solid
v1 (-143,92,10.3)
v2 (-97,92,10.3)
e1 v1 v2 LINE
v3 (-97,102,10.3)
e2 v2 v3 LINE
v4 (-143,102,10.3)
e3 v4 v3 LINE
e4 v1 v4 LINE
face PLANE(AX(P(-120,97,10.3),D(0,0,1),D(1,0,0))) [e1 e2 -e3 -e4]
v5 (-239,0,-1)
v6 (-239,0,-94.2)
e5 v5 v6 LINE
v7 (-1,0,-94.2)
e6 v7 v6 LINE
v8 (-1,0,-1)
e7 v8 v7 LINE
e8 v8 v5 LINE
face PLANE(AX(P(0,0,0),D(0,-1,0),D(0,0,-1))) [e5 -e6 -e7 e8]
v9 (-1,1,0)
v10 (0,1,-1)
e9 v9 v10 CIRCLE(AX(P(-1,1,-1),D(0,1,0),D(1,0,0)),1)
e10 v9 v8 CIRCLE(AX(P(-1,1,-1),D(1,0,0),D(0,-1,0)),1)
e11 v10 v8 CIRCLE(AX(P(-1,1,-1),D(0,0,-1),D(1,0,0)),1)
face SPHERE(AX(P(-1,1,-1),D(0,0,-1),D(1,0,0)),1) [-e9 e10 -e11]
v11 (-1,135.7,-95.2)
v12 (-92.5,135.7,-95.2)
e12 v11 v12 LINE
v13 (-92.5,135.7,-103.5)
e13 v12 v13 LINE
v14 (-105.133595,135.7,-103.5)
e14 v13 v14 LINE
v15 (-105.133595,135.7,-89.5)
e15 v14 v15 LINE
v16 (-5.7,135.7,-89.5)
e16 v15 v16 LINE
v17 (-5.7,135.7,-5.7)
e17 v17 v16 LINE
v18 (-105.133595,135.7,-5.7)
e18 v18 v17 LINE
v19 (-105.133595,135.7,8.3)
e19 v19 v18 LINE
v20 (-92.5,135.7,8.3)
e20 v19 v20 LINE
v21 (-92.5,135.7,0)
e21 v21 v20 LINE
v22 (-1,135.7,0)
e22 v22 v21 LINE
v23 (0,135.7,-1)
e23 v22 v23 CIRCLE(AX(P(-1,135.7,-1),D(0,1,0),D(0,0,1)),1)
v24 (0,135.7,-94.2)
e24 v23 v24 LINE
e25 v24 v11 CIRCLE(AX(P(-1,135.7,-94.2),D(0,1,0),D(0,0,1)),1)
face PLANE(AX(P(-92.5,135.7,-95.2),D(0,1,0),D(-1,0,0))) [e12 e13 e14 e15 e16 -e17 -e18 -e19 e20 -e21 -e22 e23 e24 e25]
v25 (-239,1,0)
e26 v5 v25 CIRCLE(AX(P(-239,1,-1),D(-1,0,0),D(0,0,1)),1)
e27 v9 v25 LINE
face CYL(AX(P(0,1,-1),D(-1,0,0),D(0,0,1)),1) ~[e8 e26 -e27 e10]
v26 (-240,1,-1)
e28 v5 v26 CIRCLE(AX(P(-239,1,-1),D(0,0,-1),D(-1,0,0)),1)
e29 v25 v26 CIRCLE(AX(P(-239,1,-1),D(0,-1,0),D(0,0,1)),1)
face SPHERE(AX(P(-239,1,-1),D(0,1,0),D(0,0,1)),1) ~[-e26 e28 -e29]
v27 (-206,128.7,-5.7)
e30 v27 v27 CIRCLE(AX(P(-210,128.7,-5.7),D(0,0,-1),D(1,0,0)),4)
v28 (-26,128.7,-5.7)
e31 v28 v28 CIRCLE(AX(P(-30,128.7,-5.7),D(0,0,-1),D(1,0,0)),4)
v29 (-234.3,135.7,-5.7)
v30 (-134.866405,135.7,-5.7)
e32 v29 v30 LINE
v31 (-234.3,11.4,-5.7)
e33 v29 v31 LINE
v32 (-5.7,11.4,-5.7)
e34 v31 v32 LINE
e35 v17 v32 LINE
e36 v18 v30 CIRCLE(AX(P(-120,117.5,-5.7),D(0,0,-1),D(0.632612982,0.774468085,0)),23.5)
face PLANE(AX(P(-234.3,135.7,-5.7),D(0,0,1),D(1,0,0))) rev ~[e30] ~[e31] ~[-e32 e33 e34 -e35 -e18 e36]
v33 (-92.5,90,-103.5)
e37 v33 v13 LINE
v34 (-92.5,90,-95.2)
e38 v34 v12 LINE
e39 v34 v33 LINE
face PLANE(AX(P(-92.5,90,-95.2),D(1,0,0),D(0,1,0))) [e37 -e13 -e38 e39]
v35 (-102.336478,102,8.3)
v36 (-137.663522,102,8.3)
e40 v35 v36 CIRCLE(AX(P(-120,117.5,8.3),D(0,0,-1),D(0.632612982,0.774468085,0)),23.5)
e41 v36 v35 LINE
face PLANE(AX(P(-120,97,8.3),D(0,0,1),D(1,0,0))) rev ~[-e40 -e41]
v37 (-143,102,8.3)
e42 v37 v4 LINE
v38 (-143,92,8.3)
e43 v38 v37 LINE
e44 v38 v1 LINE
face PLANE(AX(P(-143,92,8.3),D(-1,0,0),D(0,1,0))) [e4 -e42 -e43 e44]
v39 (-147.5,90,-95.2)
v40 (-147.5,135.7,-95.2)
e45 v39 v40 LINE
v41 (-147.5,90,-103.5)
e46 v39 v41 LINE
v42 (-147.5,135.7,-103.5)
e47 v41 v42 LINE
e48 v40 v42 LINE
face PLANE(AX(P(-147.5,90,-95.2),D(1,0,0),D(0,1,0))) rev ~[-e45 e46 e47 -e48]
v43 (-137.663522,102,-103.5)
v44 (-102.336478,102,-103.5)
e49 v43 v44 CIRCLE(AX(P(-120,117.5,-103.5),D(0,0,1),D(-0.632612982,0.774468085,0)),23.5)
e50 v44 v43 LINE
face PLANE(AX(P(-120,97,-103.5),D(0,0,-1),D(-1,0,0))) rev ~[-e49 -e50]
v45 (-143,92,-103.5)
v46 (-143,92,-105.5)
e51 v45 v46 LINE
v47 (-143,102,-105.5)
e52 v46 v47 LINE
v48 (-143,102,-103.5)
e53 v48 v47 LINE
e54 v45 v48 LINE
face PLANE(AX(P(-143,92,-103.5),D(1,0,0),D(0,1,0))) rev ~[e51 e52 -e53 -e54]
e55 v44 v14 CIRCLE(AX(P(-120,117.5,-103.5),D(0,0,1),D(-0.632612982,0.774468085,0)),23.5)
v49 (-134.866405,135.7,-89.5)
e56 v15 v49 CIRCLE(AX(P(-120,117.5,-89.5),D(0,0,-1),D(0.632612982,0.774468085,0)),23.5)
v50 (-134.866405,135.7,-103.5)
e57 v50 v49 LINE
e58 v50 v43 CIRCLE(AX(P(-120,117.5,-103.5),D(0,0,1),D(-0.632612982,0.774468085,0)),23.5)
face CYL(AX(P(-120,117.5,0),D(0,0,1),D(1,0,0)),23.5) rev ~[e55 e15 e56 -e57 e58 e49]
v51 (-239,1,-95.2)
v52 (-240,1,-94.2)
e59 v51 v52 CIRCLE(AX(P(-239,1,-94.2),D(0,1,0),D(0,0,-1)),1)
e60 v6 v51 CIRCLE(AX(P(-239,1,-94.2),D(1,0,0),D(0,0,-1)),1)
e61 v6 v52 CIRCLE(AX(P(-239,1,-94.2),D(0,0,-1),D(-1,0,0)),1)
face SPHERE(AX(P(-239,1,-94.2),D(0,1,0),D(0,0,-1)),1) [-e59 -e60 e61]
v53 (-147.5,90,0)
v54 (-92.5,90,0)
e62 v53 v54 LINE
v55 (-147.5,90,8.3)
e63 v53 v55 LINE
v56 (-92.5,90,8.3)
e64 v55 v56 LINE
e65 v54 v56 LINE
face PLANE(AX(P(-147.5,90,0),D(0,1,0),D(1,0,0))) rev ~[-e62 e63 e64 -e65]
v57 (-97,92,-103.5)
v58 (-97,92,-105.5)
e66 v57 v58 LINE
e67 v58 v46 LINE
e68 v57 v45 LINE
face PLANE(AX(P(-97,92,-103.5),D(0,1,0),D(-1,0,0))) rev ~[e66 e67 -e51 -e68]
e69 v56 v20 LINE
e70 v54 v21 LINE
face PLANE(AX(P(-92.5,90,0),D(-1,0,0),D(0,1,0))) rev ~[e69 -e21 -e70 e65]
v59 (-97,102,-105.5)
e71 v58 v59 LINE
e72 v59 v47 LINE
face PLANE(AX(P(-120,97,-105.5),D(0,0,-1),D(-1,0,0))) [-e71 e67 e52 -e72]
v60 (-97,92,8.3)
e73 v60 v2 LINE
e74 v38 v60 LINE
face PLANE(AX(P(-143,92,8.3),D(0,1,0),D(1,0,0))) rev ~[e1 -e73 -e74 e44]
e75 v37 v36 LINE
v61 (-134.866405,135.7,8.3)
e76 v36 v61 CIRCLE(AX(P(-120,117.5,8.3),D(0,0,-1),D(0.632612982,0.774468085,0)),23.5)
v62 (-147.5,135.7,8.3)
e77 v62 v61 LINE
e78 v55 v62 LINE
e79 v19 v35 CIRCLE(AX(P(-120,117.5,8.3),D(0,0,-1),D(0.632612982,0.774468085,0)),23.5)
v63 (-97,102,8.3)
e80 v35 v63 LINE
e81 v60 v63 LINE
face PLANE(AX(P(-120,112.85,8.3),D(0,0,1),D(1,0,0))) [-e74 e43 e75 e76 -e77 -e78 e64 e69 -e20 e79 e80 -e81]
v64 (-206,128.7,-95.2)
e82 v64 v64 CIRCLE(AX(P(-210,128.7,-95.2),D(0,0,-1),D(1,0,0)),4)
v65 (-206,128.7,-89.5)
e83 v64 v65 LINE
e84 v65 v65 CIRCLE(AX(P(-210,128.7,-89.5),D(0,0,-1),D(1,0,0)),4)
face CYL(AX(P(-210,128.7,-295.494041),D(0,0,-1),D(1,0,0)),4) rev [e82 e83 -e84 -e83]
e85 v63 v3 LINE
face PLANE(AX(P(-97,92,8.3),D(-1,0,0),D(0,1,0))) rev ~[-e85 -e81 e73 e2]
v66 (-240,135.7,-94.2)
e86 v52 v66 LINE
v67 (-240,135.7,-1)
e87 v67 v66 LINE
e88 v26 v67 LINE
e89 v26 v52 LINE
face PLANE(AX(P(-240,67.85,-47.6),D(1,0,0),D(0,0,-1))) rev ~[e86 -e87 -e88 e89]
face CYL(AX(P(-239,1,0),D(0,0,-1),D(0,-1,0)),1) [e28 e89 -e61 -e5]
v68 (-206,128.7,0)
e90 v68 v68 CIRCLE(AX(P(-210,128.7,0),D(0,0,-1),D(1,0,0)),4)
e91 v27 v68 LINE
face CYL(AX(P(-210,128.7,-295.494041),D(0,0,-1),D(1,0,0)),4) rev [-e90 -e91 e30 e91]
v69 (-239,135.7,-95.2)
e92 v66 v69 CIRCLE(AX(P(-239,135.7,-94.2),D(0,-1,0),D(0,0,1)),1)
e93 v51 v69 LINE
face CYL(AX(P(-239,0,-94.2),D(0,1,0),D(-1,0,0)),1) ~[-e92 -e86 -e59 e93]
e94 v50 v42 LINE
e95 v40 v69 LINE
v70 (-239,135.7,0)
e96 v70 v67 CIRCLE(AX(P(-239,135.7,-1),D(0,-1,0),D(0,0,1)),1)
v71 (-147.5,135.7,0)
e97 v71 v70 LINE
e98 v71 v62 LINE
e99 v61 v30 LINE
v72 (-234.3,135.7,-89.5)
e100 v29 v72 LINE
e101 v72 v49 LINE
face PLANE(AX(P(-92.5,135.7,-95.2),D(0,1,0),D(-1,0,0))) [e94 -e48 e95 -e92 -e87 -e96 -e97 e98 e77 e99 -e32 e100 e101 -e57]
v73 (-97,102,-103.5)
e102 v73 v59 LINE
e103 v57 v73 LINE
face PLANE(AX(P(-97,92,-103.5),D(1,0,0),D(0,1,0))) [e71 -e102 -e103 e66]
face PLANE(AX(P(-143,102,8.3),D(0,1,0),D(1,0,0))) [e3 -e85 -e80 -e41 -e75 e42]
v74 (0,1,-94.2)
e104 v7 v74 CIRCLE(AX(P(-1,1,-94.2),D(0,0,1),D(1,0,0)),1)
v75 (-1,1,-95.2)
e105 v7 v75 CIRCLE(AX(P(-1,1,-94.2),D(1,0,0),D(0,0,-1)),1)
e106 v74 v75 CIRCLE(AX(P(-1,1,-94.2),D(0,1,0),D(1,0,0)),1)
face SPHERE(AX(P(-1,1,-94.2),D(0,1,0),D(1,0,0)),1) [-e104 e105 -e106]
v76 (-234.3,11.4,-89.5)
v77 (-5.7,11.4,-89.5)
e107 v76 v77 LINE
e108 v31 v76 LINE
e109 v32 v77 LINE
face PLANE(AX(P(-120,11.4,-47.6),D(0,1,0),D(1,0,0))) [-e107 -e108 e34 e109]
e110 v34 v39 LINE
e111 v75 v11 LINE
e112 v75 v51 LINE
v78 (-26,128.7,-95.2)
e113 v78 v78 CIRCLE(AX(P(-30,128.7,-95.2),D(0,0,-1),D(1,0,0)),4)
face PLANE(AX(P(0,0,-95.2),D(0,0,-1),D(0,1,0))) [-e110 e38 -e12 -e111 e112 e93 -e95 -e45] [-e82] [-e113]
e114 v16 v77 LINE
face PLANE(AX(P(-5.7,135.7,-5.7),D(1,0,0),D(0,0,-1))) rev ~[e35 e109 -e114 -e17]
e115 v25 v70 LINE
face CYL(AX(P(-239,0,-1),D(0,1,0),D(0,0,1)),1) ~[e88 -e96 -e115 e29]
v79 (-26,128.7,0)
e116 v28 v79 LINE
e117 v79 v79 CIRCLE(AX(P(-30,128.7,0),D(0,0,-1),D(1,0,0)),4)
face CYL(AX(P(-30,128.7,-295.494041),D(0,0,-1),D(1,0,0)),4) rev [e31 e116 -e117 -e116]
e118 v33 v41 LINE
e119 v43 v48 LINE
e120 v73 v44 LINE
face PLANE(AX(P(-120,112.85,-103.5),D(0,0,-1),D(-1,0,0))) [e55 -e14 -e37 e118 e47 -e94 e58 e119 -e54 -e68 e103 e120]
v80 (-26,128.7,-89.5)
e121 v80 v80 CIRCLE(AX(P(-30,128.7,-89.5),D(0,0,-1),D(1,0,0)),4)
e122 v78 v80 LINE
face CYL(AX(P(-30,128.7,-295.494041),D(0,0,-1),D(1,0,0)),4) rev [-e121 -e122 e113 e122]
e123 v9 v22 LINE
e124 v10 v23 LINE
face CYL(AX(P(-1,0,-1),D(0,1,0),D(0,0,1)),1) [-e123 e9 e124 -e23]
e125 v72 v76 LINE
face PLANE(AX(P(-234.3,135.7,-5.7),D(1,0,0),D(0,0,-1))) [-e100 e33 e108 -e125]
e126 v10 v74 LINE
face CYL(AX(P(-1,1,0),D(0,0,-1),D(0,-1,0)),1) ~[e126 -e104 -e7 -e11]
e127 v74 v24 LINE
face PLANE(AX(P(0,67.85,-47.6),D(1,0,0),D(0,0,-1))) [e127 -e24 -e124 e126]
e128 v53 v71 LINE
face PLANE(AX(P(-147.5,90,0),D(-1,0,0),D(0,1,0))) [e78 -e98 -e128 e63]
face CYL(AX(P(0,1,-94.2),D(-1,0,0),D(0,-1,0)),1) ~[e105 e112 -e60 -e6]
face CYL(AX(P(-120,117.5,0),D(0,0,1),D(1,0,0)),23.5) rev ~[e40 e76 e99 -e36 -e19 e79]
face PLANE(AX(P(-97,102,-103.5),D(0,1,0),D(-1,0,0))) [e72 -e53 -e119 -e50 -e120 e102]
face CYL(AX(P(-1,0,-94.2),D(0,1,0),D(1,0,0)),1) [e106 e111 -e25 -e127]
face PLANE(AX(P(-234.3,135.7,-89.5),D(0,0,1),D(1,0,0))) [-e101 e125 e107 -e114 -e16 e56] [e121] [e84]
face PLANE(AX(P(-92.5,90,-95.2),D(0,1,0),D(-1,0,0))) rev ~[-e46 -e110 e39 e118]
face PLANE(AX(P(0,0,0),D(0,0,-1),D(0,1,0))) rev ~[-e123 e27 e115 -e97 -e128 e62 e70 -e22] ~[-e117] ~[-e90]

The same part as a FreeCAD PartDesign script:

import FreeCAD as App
import Part
import Sketcher

V = App.Vector
Q = App.Units.Quantity


def edges_at(feature, points):
    """Names of the edges that pass closest to the given points."""
    edges = feature.Shape.Edges
    near = lambda p: min(range(len(edges)), key=lambda i: edges[i].distToShape(Part.Vertex(*p))[0])
    return sorted({f"Edge{near(p) + 1}" for p in points})


def add_polygon(sketch, points):
    """Adds a closed chain of lines whose ends are joined by coincident constraints."""
    first, n = sketch.GeometryCount, len(points)
    for a, b in zip(points, points[1:] + points[:1]):
        sketch.addGeometry(Part.LineSegment(App.Vector(*a, 0), App.Vector(*b, 0)), False)
    for i in range(n):
        sketch.addConstraint(Sketcher.Constraint("Coincident", first + i, 2, first + (i + 1) % n, 1))

doc = App.newDocument("Part")
body = doc.addObject("PartDesign::Body", "Body")

# Sketch on YZ plane
sketch1 = body.newObject("Sketcher::SketchObject", "Sketch")
sketch1.AttachmentSupport = (doc.getObject("YZ_Plane"), [""])
sketch1.MapMode = "FlatFace"
add_polygon(sketch1, [(136, 0), (0, 0), (0, -95), (136, -95)])  # lines 0-3
sketch1.addConstraint([
    Sketcher.Constraint("Horizontal", 0),
    Sketcher.Constraint("Vertical", 1),
    Sketcher.Constraint("Horizontal", 2),
    Sketcher.Constraint("Vertical", 3),
    Sketcher.Constraint("Coincident", 0, 2, -1, 1),
    Sketcher.Constraint("DistanceX", 0, 2, 0, 1, Q("135.7 mm")),
    Sketcher.Constraint("DistanceY", 1, 2, 1, 1, Q("95.2 mm")),
])
pad1 = body.newObject("PartDesign::Pad", "Pad")
pad1.Profile = sketch1
pad1.Length = 240
pad1.Reversed = True

# Sketch on XZ plane
sketch2 = body.newObject("Sketcher::SketchObject", "Sketch001")
sketch2.AttachmentSupport = (doc.getObject("XZ_Plane"), [""])
sketch2.MapMode = "FlatFace"
sketch2.AttachmentOffset = App.Placement(V(0, 0, -135.7), App.Rotation())
add_polygon(sketch2, [(-234, -90), (-234, -6), (-6, -6), (-6, -90)])  # lines 0-3
sketch2.addConstraint([
    Sketcher.Constraint("Vertical", 0),
    Sketcher.Constraint("Horizontal", 1),
    Sketcher.Constraint("Vertical", 2),
    Sketcher.Constraint("Horizontal", 3),
    Sketcher.Constraint("DistanceX", 1, 1, 1, 2, Q("228.6 mm")),
    Sketcher.Constraint("DistanceY", 0, 1, 0, 2, Q("83.8 mm")),
    Sketcher.Constraint("DistanceX", 0, 2, -1, 1, Q("234.3 mm")),
    Sketcher.Constraint("DistanceY", 0, 2, -1, 1, Q("5.7 mm")),
])
pocket1 = body.newObject("PartDesign::Pocket", "Pocket")
pocket1.Profile = sketch2
pocket1.Length = 124.3
pocket1.Reversed = True
doc.recompute()

fillet = body.newObject("PartDesign::Fillet", "Fillet")
fillet.Base = (pocket1, edges_at(pocket1, [
    (-240, 67.85, -95.2),
    (-240, 67.85, 0),
    (0, 67.85, -95.2),
    (0, 0, -47.6),
    (0, 67.85, 0),
    (-120, 0, -95.2),
    (-120, 0, 0),
    (-240, 0, -47.6),
]))
fillet.Radius = 1

# Sketch on XY plane
sketch3 = body.newObject("Sketcher::SketchObject", "Sketch002")
sketch3.AttachmentSupport = (doc.getObject("XY_Plane"), [""])
sketch3.MapMode = "FlatFace"
sketch3.addGeometry(Part.Circle(V(-120, 118, 0), V(0, 0, 1), 24), False)
sketch3.addConstraint([
    Sketcher.Constraint("Diameter", 0, Q("47 mm")),
    Sketcher.Constraint("DistanceX", 0, 3, -1, 1, Q("120 mm")),
    Sketcher.Constraint("DistanceY", -1, 1, 0, 3, Q("117.5 mm")),
])
pocket2 = body.newObject("PartDesign::Pocket", "Pocket001")
pocket2.Profile = sketch3
pocket2.Length = 140

# Sketch on XY plane
sketch4 = body.newObject("Sketcher::SketchObject", "Sketch003")
sketch4.AttachmentSupport = (doc.getObject("XY_Plane"), [""])
sketch4.MapMode = "FlatFace"
add_polygon(sketch4, [(-148, 136), (-148, 90), (-92, 90), (-92, 136)])  # lines 0-3
sketch4.addConstraint([
    Sketcher.Constraint("Vertical", 0),
    Sketcher.Constraint("Horizontal", 1),
    Sketcher.Constraint("Vertical", 2),
    Sketcher.Constraint("Horizontal", 3),
    Sketcher.Constraint("DistanceX", 1, 1, 1, 2, Q("55 mm")),
    Sketcher.Constraint("DistanceY", 0, 2, 0, 1, Q("45.7 mm")),
    Sketcher.Constraint("DistanceY", -1, 1, 0, 2, Q("90 mm")),
    Sketcher.Constraint("DistanceX", 0, 2, -1, 1, Q("147.5 mm")),
])
pad2 = body.newObject("PartDesign::Pad", "Pad001")
pad2.Profile = sketch4
pad2.Length = 8.3

# Sketch on XY plane
sketch5 = body.newObject("Sketcher::SketchObject", "Sketch004")
sketch5.AttachmentSupport = (doc.getObject("XY_Plane"), [""])
sketch5.MapMode = "FlatFace"
sketch5.AttachmentOffset = App.Placement(V(0, 0, -95.2), App.Rotation())
sketch5.addGeometry(Part.Circle(V(-120, 118, 0), V(0, 0, 1), 24), False)
sketch5.addConstraint([
    Sketcher.Constraint("Diameter", 0, Q("47 mm")),
    Sketcher.Constraint("DistanceX", 0, 3, -1, 1, Q("120 mm")),
    Sketcher.Constraint("DistanceY", -1, 1, 0, 3, Q("117.5 mm")),
])
pocket3 = body.newObject("PartDesign::Pocket", "Pocket002")
pocket3.Profile = sketch5
pocket3.Type = "ThroughAll"
pocket3.Reversed = True

# Sketch on XY plane
sketch6 = body.newObject("Sketcher::SketchObject", "Sketch005")
sketch6.AttachmentSupport = (doc.getObject("XY_Plane"), [""])
sketch6.MapMode = "FlatFace"
sketch6.AttachmentOffset = App.Placement(V(0, 0, -95.2), App.Rotation())
add_polygon(sketch6, [(-92, 136), (-92, 90), (-148, 90), (-148, 136)])  # lines 0-3
sketch6.addConstraint([
    Sketcher.Constraint("Vertical", 0),
    Sketcher.Constraint("Horizontal", 1),
    Sketcher.Constraint("Vertical", 2),
    Sketcher.Constraint("Horizontal", 3),
    Sketcher.Constraint("DistanceX", 1, 2, 1, 1, Q("55 mm")),
    Sketcher.Constraint("DistanceY", 0, 2, 0, 1, Q("45.7 mm")),
    Sketcher.Constraint("DistanceY", -1, 1, 0, 2, Q("90 mm")),
    Sketcher.Constraint("DistanceX", 0, 2, -1, 1, Q("92.5 mm")),
])
pad3 = body.newObject("PartDesign::Pad", "Pad002")
pad3.Profile = sketch6
pad3.Length = 8.3
pad3.Reversed = True

# Sketch on XY plane
sketch7 = body.newObject("Sketcher::SketchObject", "Sketch006")
sketch7.AttachmentSupport = (doc.getObject("XY_Plane"), [""])
sketch7.MapMode = "FlatFace"
sketch7.AttachmentOffset = App.Placement(V(0, 0, 8.3), App.Rotation())
sketch7.addGeometry(Part.Circle(V(-120, 118, 0), V(0, 0, 1), 24), False)
sketch7.addConstraint([
    Sketcher.Constraint("Diameter", 0, Q("47 mm")),
    Sketcher.Constraint("DistanceX", 0, 3, -1, 1, Q("120 mm")),
    Sketcher.Constraint("DistanceY", -1, 1, 0, 3, Q("117.5 mm")),
])
pocket4 = body.newObject("PartDesign::Pocket", "Pocket003")
pocket4.Profile = sketch7
pocket4.Type = "ThroughAll"

# Sketch on XY plane
sketch8 = body.newObject("Sketcher::SketchObject", "Sketch007")
sketch8.AttachmentSupport = (doc.getObject("XY_Plane"), [""])
sketch8.MapMode = "FlatFace"
sketch8.addGeometry([
    Part.Circle(V(-30, 128.7, 0), V(0, 0, 1), 4),
    Part.Circle(V(-210, 128.7, 0), V(0, 0, 1), 4),
], False)
sketch8.addConstraint([
    Sketcher.Constraint("Equal", 0, 1),
    Sketcher.Constraint("Horizontal", 0, 3, 1, 3),
    Sketcher.Constraint("Diameter", 0, Q("8 mm")),
    Sketcher.Constraint("DistanceX", 0, 3, -1, 1, Q("30 mm")),
    Sketcher.Constraint("DistanceX", 1, 3, -1, 1, Q("210 mm")),
    Sketcher.Constraint("DistanceY", -1, 1, 0, 3, Q("128.7 mm")),
])
pocket5 = body.newObject("PartDesign::Pocket", "Pocket004")
pocket5.Profile = sketch8
pocket5.Type = "ThroughAll"
pocket5.Midplane = True

# Sketch on XY plane
sketch9 = body.newObject("Sketcher::SketchObject", "Sketch008")
sketch9.AttachmentSupport = (doc.getObject("XY_Plane"), [""])
sketch9.MapMode = "FlatFace"
sketch9.AttachmentOffset = App.Placement(V(0, 0, 8.3), App.Rotation())
add_polygon(sketch9, [(-143, 102), (-143, 92), (-97, 92), (-97, 102)])  # lines 0-3
sketch9.addConstraint([
    Sketcher.Constraint("Vertical", 0),
    Sketcher.Constraint("Horizontal", 1),
    Sketcher.Constraint("Vertical", 2),
    Sketcher.Constraint("Horizontal", 3),
    Sketcher.Constraint("DistanceX", 1, 1, 1, 2, Q("46 mm")),
    Sketcher.Constraint("DistanceY", 0, 2, 0, 1, Q("10 mm")),
    Sketcher.Constraint("DistanceX", 0, 2, -1, 1, Q("143 mm")),
    Sketcher.Constraint("DistanceY", -1, 1, 0, 2, Q("92 mm")),
])
pad4 = body.newObject("PartDesign::Pad", "Pad003")
pad4.Profile = sketch9
pad4.Length = 2

# Sketch on XY plane
sketch10 = body.newObject("Sketcher::SketchObject", "Sketch009")
sketch10.AttachmentSupport = (doc.getObject("XY_Plane"), [""])
sketch10.MapMode = "FlatFace"
sketch10.AttachmentOffset = App.Placement(V(0, 0, -103.5), App.Rotation())
add_polygon(sketch10, [(-97, 102), (-97, 92), (-143, 92), (-143, 102)])  # lines 0-3
sketch10.addConstraint([
    Sketcher.Constraint("Vertical", 0),
    Sketcher.Constraint("Horizontal", 1),
    Sketcher.Constraint("Vertical", 2),
    Sketcher.Constraint("Horizontal", 3),
    Sketcher.Constraint("DistanceX", 1, 2, 1, 1, Q("46 mm")),
    Sketcher.Constraint("DistanceY", 0, 2, 0, 1, Q("10 mm")),
    Sketcher.Constraint("DistanceX", 0, 2, -1, 1, Q("97 mm")),
    Sketcher.Constraint("DistanceY", -1, 1, 0, 2, Q("92 mm")),
])
pad5 = body.newObject("PartDesign::Pad", "Pad004")
pad5.Profile = sketch10
pad5.Length = 2
pad5.Reversed = True

doc.recompute()
